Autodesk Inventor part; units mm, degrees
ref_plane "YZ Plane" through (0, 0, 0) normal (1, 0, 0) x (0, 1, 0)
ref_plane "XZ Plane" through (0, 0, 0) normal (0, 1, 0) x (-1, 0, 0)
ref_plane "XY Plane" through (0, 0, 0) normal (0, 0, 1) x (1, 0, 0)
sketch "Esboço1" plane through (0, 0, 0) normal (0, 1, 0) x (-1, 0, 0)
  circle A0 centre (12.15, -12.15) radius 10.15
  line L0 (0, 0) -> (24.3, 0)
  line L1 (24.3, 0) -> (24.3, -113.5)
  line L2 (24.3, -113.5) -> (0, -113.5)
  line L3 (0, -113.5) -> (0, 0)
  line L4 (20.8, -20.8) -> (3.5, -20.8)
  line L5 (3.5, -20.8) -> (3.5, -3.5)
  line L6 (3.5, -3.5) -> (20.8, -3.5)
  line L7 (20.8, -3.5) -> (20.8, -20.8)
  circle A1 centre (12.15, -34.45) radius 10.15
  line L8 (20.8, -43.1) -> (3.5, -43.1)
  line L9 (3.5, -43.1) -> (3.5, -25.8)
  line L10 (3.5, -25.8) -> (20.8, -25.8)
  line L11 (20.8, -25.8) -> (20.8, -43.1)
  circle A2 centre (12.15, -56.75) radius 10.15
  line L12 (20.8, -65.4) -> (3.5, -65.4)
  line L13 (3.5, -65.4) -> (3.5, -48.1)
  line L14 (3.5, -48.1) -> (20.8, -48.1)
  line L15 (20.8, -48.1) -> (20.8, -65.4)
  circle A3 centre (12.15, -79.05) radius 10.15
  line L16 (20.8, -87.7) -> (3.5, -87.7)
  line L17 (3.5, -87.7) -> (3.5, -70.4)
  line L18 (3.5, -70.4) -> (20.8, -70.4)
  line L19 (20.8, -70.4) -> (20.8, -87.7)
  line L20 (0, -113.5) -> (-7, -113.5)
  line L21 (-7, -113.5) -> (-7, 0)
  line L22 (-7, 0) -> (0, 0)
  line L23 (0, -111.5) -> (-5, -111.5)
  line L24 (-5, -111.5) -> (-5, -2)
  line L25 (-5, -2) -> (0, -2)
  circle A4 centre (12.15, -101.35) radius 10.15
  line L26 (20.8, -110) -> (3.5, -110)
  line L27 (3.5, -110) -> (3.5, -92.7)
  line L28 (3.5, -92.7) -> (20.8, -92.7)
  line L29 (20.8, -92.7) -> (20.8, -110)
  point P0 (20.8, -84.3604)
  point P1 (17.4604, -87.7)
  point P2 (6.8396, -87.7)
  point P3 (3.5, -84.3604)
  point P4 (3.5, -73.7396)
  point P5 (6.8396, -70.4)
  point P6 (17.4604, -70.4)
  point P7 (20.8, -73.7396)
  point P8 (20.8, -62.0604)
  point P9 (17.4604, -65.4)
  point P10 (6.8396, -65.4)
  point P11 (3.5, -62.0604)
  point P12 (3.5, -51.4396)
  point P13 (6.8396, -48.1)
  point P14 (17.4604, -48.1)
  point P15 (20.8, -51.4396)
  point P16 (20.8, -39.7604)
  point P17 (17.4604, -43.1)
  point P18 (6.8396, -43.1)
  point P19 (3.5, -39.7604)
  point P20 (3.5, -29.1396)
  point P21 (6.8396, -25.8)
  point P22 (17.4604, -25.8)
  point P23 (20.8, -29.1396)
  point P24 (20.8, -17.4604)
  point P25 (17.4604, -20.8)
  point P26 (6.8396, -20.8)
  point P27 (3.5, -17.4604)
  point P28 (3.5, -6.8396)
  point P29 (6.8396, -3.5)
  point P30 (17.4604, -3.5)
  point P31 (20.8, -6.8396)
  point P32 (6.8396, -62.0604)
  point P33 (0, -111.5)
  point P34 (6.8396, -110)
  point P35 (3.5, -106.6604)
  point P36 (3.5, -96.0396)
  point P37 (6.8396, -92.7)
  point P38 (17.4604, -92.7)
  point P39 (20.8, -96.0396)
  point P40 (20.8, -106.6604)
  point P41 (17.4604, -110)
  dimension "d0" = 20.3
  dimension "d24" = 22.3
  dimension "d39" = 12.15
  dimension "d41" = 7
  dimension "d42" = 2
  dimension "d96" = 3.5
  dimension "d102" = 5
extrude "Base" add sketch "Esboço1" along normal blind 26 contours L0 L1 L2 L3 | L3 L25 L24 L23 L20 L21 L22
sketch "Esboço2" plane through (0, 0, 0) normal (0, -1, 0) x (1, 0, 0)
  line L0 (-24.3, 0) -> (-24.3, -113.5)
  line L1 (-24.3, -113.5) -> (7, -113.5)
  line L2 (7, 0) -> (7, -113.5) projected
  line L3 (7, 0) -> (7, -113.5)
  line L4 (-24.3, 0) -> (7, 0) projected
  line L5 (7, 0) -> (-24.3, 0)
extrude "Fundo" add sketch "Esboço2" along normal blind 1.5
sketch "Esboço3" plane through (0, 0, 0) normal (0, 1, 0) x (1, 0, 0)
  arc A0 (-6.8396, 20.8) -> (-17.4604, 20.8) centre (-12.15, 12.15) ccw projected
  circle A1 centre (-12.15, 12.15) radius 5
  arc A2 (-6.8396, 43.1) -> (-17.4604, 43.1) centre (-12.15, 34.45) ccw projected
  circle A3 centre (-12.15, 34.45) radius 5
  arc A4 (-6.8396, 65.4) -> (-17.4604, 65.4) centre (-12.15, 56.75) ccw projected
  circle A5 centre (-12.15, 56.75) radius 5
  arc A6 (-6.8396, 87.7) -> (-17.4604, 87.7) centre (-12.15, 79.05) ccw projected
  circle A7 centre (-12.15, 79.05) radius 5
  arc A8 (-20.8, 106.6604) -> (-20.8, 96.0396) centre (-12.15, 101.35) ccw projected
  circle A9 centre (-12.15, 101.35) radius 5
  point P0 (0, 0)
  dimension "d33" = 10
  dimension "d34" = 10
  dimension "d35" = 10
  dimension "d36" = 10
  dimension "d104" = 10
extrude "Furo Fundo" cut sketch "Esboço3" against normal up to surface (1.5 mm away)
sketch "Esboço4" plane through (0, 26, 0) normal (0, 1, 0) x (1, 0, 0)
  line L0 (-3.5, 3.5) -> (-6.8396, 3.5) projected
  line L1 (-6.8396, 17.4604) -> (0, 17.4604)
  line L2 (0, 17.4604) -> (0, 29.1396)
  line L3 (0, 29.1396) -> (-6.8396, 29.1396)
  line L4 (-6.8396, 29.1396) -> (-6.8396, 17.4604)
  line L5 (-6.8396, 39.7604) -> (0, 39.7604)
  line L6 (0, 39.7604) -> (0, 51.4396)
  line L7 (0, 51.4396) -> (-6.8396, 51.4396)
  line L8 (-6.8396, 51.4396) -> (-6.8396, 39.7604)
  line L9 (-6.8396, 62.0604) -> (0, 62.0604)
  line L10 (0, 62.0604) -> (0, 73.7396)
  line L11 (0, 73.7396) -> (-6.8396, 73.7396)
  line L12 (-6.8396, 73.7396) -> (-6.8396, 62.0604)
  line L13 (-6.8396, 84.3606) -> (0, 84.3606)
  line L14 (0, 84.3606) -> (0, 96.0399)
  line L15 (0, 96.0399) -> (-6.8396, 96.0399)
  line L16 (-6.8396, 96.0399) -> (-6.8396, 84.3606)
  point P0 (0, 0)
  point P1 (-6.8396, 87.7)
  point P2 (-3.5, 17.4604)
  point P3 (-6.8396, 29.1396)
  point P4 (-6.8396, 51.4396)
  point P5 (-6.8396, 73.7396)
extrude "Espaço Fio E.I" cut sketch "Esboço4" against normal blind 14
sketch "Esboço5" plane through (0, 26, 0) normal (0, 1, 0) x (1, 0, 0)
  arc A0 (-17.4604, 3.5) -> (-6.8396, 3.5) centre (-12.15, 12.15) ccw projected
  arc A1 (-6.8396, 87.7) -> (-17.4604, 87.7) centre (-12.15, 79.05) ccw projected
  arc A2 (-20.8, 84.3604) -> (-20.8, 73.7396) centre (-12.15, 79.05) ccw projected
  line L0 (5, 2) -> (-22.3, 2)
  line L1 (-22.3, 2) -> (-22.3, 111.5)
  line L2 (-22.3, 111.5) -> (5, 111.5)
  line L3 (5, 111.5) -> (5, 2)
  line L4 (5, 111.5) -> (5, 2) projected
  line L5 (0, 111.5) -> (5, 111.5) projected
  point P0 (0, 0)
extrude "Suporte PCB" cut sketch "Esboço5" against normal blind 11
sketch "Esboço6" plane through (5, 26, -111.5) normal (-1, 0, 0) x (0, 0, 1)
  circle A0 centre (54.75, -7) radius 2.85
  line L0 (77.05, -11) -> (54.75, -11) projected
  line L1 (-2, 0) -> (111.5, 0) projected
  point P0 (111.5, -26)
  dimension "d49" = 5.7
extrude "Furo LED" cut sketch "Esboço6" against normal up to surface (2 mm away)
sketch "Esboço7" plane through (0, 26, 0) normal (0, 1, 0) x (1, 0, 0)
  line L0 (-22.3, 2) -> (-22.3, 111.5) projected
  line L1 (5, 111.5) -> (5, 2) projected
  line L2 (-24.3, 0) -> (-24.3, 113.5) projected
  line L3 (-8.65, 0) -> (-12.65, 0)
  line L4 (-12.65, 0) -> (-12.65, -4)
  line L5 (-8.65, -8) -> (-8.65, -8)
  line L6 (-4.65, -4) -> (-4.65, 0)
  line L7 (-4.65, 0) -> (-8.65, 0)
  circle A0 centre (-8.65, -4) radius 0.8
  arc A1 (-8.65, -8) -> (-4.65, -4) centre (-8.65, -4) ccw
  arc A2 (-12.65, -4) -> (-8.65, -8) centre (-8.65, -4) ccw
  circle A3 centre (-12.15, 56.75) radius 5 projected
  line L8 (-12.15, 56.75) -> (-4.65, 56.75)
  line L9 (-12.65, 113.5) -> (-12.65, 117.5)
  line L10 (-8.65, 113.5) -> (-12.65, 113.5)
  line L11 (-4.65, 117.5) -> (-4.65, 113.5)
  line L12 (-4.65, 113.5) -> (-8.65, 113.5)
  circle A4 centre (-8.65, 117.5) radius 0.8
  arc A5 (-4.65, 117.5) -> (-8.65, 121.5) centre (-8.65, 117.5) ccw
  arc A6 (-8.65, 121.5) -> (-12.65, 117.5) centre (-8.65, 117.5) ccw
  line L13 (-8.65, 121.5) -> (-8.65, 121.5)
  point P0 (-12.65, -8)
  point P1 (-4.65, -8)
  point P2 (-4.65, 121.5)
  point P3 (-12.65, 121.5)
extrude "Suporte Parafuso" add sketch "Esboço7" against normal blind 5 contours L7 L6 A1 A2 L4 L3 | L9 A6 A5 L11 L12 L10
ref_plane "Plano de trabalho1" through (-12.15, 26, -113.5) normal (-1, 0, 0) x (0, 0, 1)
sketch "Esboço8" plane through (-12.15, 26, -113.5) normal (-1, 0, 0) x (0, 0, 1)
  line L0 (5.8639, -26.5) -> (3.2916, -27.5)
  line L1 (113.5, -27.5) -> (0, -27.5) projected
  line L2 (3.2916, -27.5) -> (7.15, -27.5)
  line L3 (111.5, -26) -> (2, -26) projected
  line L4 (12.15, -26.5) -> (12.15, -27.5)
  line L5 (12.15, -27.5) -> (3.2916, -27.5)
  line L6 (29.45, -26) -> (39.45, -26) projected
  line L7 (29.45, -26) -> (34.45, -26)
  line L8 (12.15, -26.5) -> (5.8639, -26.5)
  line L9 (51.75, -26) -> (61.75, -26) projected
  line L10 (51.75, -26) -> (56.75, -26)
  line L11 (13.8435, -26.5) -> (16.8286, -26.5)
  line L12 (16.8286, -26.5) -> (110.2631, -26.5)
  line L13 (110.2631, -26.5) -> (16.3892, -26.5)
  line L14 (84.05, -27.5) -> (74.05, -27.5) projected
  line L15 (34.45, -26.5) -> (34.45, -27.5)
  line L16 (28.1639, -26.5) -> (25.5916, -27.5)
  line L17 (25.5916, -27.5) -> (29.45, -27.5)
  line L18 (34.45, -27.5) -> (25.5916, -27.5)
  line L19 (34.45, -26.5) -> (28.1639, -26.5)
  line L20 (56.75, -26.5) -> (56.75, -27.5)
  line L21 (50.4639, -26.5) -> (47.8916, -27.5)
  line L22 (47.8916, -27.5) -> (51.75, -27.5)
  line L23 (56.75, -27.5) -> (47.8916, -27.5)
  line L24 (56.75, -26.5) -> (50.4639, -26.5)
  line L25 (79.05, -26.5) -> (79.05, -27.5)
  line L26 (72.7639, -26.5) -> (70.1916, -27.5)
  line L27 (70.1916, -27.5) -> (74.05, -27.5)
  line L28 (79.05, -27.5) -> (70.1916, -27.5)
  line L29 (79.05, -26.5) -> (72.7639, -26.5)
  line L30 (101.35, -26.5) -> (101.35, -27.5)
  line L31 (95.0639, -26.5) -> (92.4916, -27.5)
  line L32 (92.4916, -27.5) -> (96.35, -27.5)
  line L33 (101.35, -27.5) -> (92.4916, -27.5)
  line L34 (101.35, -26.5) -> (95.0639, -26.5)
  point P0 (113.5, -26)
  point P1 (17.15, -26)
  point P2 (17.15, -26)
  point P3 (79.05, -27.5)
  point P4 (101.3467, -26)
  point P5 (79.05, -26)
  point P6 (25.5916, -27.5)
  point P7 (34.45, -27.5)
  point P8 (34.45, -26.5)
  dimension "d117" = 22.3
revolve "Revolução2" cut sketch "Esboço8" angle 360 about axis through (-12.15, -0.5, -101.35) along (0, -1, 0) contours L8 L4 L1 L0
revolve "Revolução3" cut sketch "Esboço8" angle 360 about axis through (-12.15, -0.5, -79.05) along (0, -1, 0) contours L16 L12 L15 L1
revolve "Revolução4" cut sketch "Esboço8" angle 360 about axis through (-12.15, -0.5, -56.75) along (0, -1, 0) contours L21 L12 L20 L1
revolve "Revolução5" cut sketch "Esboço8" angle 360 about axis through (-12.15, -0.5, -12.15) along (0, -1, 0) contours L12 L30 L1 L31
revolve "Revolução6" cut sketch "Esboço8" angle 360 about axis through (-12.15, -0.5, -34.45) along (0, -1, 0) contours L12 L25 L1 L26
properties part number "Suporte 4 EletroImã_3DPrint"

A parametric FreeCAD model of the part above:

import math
import FreeCAD as App
import Part
import Sketcher
from FreeCAD import Vector


def add_polygon(sketch, points):
    """Adds a closed chain of lines whose ends are joined by coincident constraints."""
    first, n = sketch.GeometryCount, len(points)
    for a, b in zip(points, points[1:] + points[:1]):
        sketch.addGeometry(Part.LineSegment(App.Vector(*a, 0), App.Vector(*b, 0)), False)
    for i in range(n):
        sketch.addConstraint(Sketcher.Constraint("Coincident", first + i, 2, first + (i + 1) % n, 1))

doc = App.newDocument("Part")
body = doc.addObject("PartDesign::Body", "Body")

# Sketch on XZ plane
sketch1 = body.newObject("Sketcher::SketchObject", "Sketch")
sketch1.AttachmentSupport = (doc.getObject("XZ_Plane"), [""])
sketch1.MapMode = "FlatFace"
add_polygon(sketch1, [(-24.3, 0), (7, 0), (7, -113.5), (-24.3, -113.5)])  # lines 0-3
add_polygon(sketch1, [(0, -2), (0, -111.5), (5, -111.5), (5, -2)])  # lines 4-7
sketch1.addGeometry(Part.ArcOfCircle(Part.Circle(Vector(-12.15, -101.35, 0), Vector(0, 0, 1), 10.15), math.radians(148.4536), math.radians(211.5464)), False)  # 8
sketch1.addGeometry(Part.LineSegment(Vector(-20.8, -106.660367, 0), Vector(-20.8, -110, 0)), False)  # 9
sketch1.addGeometry(Part.LineSegment(Vector(-20.8, -110, 0), Vector(-17.460367, -110, 0)), False)  # 10
sketch1.addGeometry(Part.ArcOfCircle(Part.Circle(Vector(-12.15, -101.35, 0), Vector(0, 0, 1), 10.15), math.radians(-121.5464), math.radians(-58.4536)), False)  # 11
sketch1.addGeometry(Part.LineSegment(Vector(-6.839633, -110, 0), Vector(-3.5, -110, 0)), False)  # 12
sketch1.addGeometry(Part.LineSegment(Vector(-3.5, -110, 0), Vector(-3.5, -106.660367, 0)), False)  # 13
sketch1.addGeometry(Part.ArcOfCircle(Part.Circle(Vector(-12.15, -101.35, 0), Vector(0, 0, 1), 10.15), math.radians(-31.5464), math.radians(31.5464)), False)  # 14
sketch1.addGeometry(Part.LineSegment(Vector(-3.5, -96.039633, 0), Vector(-3.5, -92.7, 0)), False)  # 15
sketch1.addGeometry(Part.LineSegment(Vector(-3.5, -92.7, 0), Vector(-6.839633, -92.7, 0)), False)  # 16
sketch1.addGeometry(Part.ArcOfCircle(Part.Circle(Vector(-12.15, -101.35, 0), Vector(0, 0, 1), 10.15), math.radians(58.4536), math.radians(121.5464)), False)  # 17
sketch1.addGeometry(Part.LineSegment(Vector(-17.460367, -92.7, 0), Vector(-20.8, -92.7, 0)), False)  # 18
sketch1.addGeometry(Part.LineSegment(Vector(-20.8, -92.7, 0), Vector(-20.8, -96.039633, 0)), False)  # 19
sketch1.addGeometry(Part.ArcOfCircle(Part.Circle(Vector(-12.15, -79.05, 0), Vector(0, 0, 1), 10.15), math.radians(148.4536), math.radians(211.5464)), False)  # 20
sketch1.addGeometry(Part.LineSegment(Vector(-20.8, -84.360367, 0), Vector(-20.8, -87.7, 0)), False)  # 21
sketch1.addGeometry(Part.LineSegment(Vector(-20.8, -87.7, 0), Vector(-17.460367, -87.7, 0)), False)  # 22
sketch1.addGeometry(Part.ArcOfCircle(Part.Circle(Vector(-12.15, -79.05, 0), Vector(0, 0, 1), 10.15), math.radians(-121.5464), math.radians(-58.4536)), False)  # 23
sketch1.addGeometry(Part.LineSegment(Vector(-6.839633, -87.7, 0), Vector(-3.5, -87.7, 0)), False)  # 24
sketch1.addGeometry(Part.LineSegment(Vector(-3.5, -87.7, 0), Vector(-3.5, -84.360367, 0)), False)  # 25
sketch1.addGeometry(Part.ArcOfCircle(Part.Circle(Vector(-12.15, -79.05, 0), Vector(0, 0, 1), 10.15), math.radians(-31.5464), math.radians(31.5464)), False)  # 26
sketch1.addGeometry(Part.LineSegment(Vector(-3.5, -73.739633, 0), Vector(-3.5, -70.4, 0)), False)  # 27
sketch1.addGeometry(Part.LineSegment(Vector(-3.5, -70.4, 0), Vector(-6.839633, -70.4, 0)), False)  # 28
sketch1.addGeometry(Part.ArcOfCircle(Part.Circle(Vector(-12.15, -79.05, 0), Vector(0, 0, 1), 10.15), math.radians(58.4536), math.radians(121.5464)), False)  # 29
sketch1.addGeometry(Part.LineSegment(Vector(-17.460367, -70.4, 0), Vector(-20.8, -70.4, 0)), False)  # 30
sketch1.addGeometry(Part.LineSegment(Vector(-20.8, -70.4, 0), Vector(-20.8, -73.739633, 0)), False)  # 31
sketch1.addGeometry(Part.ArcOfCircle(Part.Circle(Vector(-12.15, -56.75, 0), Vector(0, 0, 1), 10.15), math.radians(148.4536), math.radians(211.5464)), False)  # 32
sketch1.addGeometry(Part.LineSegment(Vector(-20.8, -62.060367, 0), Vector(-20.8, -65.4, 0)), False)  # 33
sketch1.addGeometry(Part.LineSegment(Vector(-20.8, -65.4, 0), Vector(-17.460367, -65.4, 0)), False)  # 34
sketch1.addGeometry(Part.ArcOfCircle(Part.Circle(Vector(-12.15, -56.75, 0), Vector(0, 0, 1), 10.15), math.radians(-121.5464), math.radians(-58.4536)), False)  # 35
sketch1.addGeometry(Part.LineSegment(Vector(-6.839633, -65.4, 0), Vector(-3.5, -65.4, 0)), False)  # 36
sketch1.addGeometry(Part.LineSegment(Vector(-3.5, -65.4, 0), Vector(-3.5, -62.060367, 0)), False)  # 37
sketch1.addGeometry(Part.ArcOfCircle(Part.Circle(Vector(-12.15, -56.75, 0), Vector(0, 0, 1), 10.15), math.radians(-31.5464), math.radians(31.5464)), False)  # 38
sketch1.addGeometry(Part.LineSegment(Vector(-3.5, -51.439633, 0), Vector(-3.5, -48.1, 0)), False)  # 39
sketch1.addGeometry(Part.LineSegment(Vector(-3.5, -48.1, 0), Vector(-6.839633, -48.1, 0)), False)  # 40
sketch1.addGeometry(Part.ArcOfCircle(Part.Circle(Vector(-12.15, -56.75, 0), Vector(0, 0, 1), 10.15), math.radians(58.4536), math.radians(121.5464)), False)  # 41
sketch1.addGeometry(Part.LineSegment(Vector(-17.460367, -48.1, 0), Vector(-20.8, -48.1, 0)), False)  # 42
sketch1.addGeometry(Part.LineSegment(Vector(-20.8, -48.1, 0), Vector(-20.8, -51.439633, 0)), False)  # 43
sketch1.addGeometry(Part.ArcOfCircle(Part.Circle(Vector(-12.15, -34.45, 0), Vector(0, 0, 1), 10.15), math.radians(148.4536), math.radians(211.5464)), False)  # 44
sketch1.addGeometry(Part.LineSegment(Vector(-20.8, -39.760367, 0), Vector(-20.8, -43.1, 0)), False)  # 45
sketch1.addGeometry(Part.LineSegment(Vector(-20.8, -43.1, 0), Vector(-17.460367, -43.1, 0)), False)  # 46
sketch1.addGeometry(Part.ArcOfCircle(Part.Circle(Vector(-12.15, -34.45, 0), Vector(0, 0, 1), 10.15), math.radians(-121.5464), math.radians(-58.4536)), False)  # 47
sketch1.addGeometry(Part.LineSegment(Vector(-6.839633, -43.1, 0), Vector(-3.5, -43.1, 0)), False)  # 48
sketch1.addGeometry(Part.LineSegment(Vector(-3.5, -43.1, 0), Vector(-3.5, -39.760367, 0)), False)  # 49
sketch1.addGeometry(Part.ArcOfCircle(Part.Circle(Vector(-12.15, -34.45, 0), Vector(0, 0, 1), 10.15), math.radians(-31.5464), math.radians(31.5464)), False)  # 50
sketch1.addGeometry(Part.LineSegment(Vector(-3.5, -29.139633, 0), Vector(-3.5, -25.8, 0)), False)  # 51
sketch1.addGeometry(Part.LineSegment(Vector(-3.5, -25.8, 0), Vector(-6.839633, -25.8, 0)), False)  # 52
sketch1.addGeometry(Part.ArcOfCircle(Part.Circle(Vector(-12.15, -34.45, 0), Vector(0, 0, 1), 10.15), math.radians(58.4536), math.radians(121.5464)), False)  # 53
sketch1.addGeometry(Part.LineSegment(Vector(-17.460367, -25.8, 0), Vector(-20.8, -25.8, 0)), False)  # 54
sketch1.addGeometry(Part.LineSegment(Vector(-20.8, -25.8, 0), Vector(-20.8, -29.139633, 0)), False)  # 55
sketch1.addGeometry(Part.ArcOfCircle(Part.Circle(Vector(-12.15, -12.15, 0), Vector(0, 0, 1), 10.15), math.radians(148.4536), math.radians(211.5464)), False)  # 56
sketch1.addGeometry(Part.LineSegment(Vector(-20.8, -17.460367, 0), Vector(-20.8, -20.8, 0)), False)  # 57
sketch1.addGeometry(Part.LineSegment(Vector(-20.8, -20.8, 0), Vector(-17.460367, -20.8, 0)), False)  # 58
sketch1.addGeometry(Part.ArcOfCircle(Part.Circle(Vector(-12.15, -12.15, 0), Vector(0, 0, 1), 10.15), math.radians(-121.5464), math.radians(-58.4536)), False)  # 59
sketch1.addGeometry(Part.LineSegment(Vector(-6.839633, -20.8, 0), Vector(-3.5, -20.8, 0)), False)  # 60
sketch1.addGeometry(Part.LineSegment(Vector(-3.5, -20.8, 0), Vector(-3.5, -17.460367, 0)), False)  # 61
sketch1.addGeometry(Part.ArcOfCircle(Part.Circle(Vector(-12.15, -12.15, 0), Vector(0, 0, 1), 10.15), math.radians(-31.5464), math.radians(31.5464)), False)  # 62
sketch1.addGeometry(Part.LineSegment(Vector(-3.5, -6.839633, 0), Vector(-3.5, -3.5, 0)), False)  # 63
sketch1.addGeometry(Part.LineSegment(Vector(-3.5, -3.5, 0), Vector(-6.839633, -3.5, 0)), False)  # 64
sketch1.addGeometry(Part.ArcOfCircle(Part.Circle(Vector(-12.15, -12.15, 0), Vector(0, 0, 1), 10.15), math.radians(58.4536), math.radians(121.5464)), False)  # 65
sketch1.addGeometry(Part.LineSegment(Vector(-17.460367, -3.5, 0), Vector(-20.8, -3.5, 0)), False)  # 66
sketch1.addGeometry(Part.LineSegment(Vector(-20.8, -3.5, 0), Vector(-20.8, -6.839633, 0)), False)  # 67
sketch1.addConstraint([
    Sketcher.Constraint("Coincident", 8, 2, 9, 1),
    Sketcher.Constraint("Coincident", 9, 2, 10, 1),
    Sketcher.Constraint("Coincident", 10, 2, 11, 1),
    Sketcher.Constraint("Coincident", 11, 2, 12, 1),
    Sketcher.Constraint("Coincident", 12, 2, 13, 1),
    Sketcher.Constraint("Coincident", 13, 2, 14, 1),
    Sketcher.Constraint("Coincident", 14, 2, 15, 1),
    Sketcher.Constraint("Coincident", 15, 2, 16, 1),
    Sketcher.Constraint("Coincident", 16, 2, 17, 1),
    Sketcher.Constraint("Coincident", 17, 2, 18, 1),
    Sketcher.Constraint("Coincident", 18, 2, 19, 1),
    Sketcher.Constraint("Coincident", 19, 2, 8, 1),
    Sketcher.Constraint("Coincident", 20, 2, 21, 1),
    Sketcher.Constraint("Coincident", 21, 2, 22, 1),
    Sketcher.Constraint("Coincident", 22, 2, 23, 1),
    Sketcher.Constraint("Coincident", 23, 2, 24, 1),
    Sketcher.Constraint("Coincident", 24, 2, 25, 1),
    Sketcher.Constraint("Coincident", 25, 2, 26, 1),
    Sketcher.Constraint("Coincident", 26, 2, 27, 1),
    Sketcher.Constraint("Coincident", 27, 2, 28, 1),
    Sketcher.Constraint("Coincident", 28, 2, 29, 1),
    Sketcher.Constraint("Coincident", 29, 2, 30, 1),
    Sketcher.Constraint("Coincident", 30, 2, 31, 1),
    Sketcher.Constraint("Coincident", 31, 2, 20, 1),
    Sketcher.Constraint("Coincident", 32, 2, 33, 1),
    Sketcher.Constraint("Coincident", 33, 2, 34, 1),
    Sketcher.Constraint("Coincident", 34, 2, 35, 1),
    Sketcher.Constraint("Coincident", 35, 2, 36, 1),
    Sketcher.Constraint("Coincident", 36, 2, 37, 1),
    Sketcher.Constraint("Coincident", 37, 2, 38, 1),
    Sketcher.Constraint("Coincident", 38, 2, 39, 1),
    Sketcher.Constraint("Coincident", 39, 2, 40, 1),
    Sketcher.Constraint("Coincident", 40, 2, 41, 1),
    Sketcher.Constraint("Coincident", 41, 2, 42, 1),
    Sketcher.Constraint("Coincident", 42, 2, 43, 1),
    Sketcher.Constraint("Coincident", 43, 2, 32, 1),
    Sketcher.Constraint("Coincident", 44, 2, 45, 1),
    Sketcher.Constraint("Coincident", 45, 2, 46, 1),
    Sketcher.Constraint("Coincident", 46, 2, 47, 1),
    Sketcher.Constraint("Coincident", 47, 2, 48, 1),
    Sketcher.Constraint("Coincident", 48, 2, 49, 1),
    Sketcher.Constraint("Coincident", 49, 2, 50, 1),
    Sketcher.Constraint("Coincident", 50, 2, 51, 1),
    Sketcher.Constraint("Coincident", 51, 2, 52, 1),
    Sketcher.Constraint("Coincident", 52, 2, 53, 1),
    Sketcher.Constraint("Coincident", 53, 2, 54, 1),
    Sketcher.Constraint("Coincident", 54, 2, 55, 1),
    Sketcher.Constraint("Coincident", 55, 2, 44, 1),
    Sketcher.Constraint("Coincident", 56, 2, 57, 1),
    Sketcher.Constraint("Coincident", 57, 2, 58, 1),
    Sketcher.Constraint("Coincident", 58, 2, 59, 1),
    Sketcher.Constraint("Coincident", 59, 2, 60, 1),
    Sketcher.Constraint("Coincident", 60, 2, 61, 1),
    Sketcher.Constraint("Coincident", 61, 2, 62, 1),
    Sketcher.Constraint("Coincident", 62, 2, 63, 1),
    Sketcher.Constraint("Coincident", 63, 2, 64, 1),
    Sketcher.Constraint("Coincident", 64, 2, 65, 1),
    Sketcher.Constraint("Coincident", 65, 2, 66, 1),
    Sketcher.Constraint("Coincident", 66, 2, 67, 1),
    Sketcher.Constraint("Coincident", 67, 2, 56, 1),
    Sketcher.Constraint("Horizontal", 0),
    Sketcher.Constraint("Vertical", 1),
    Sketcher.Constraint("Horizontal", 2),
    Sketcher.Constraint("Vertical", 3),
    Sketcher.Constraint("Vertical", 4),
    Sketcher.Constraint("Horizontal", 5),
    Sketcher.Constraint("Vertical", 6),
    Sketcher.Constraint("Horizontal", 7),
    Sketcher.Constraint("Vertical", 9),
    Sketcher.Constraint("Horizontal", 10),
    Sketcher.Constraint("Horizontal", 12),
    Sketcher.Constraint("Vertical", 13),
    Sketcher.Constraint("Vertical", 15),
    Sketcher.Constraint("Horizontal", 16),
    Sketcher.Constraint("Horizontal", 18),
    Sketcher.Constraint("Vertical", 19),
    Sketcher.Constraint("Vertical", 21),
    Sketcher.Constraint("Horizontal", 22),
    Sketcher.Constraint("Horizontal", 24),
    Sketcher.Constraint("Vertical", 25),
    Sketcher.Constraint("Vertical", 27),
    Sketcher.Constraint("Horizontal", 28),
    Sketcher.Constraint("Horizontal", 30),
    Sketcher.Constraint("Vertical", 31),
    Sketcher.Constraint("Vertical", 33),
    Sketcher.Constraint("Horizontal", 34),
    Sketcher.Constraint("Horizontal", 36),
    Sketcher.Constraint("Vertical", 37),
    Sketcher.Constraint("Vertical", 39),
    Sketcher.Constraint("Horizontal", 40),
    Sketcher.Constraint("Horizontal", 42),
    Sketcher.Constraint("Vertical", 43),
    Sketcher.Constraint("Vertical", 45),
    Sketcher.Constraint("Horizontal", 46),
    Sketcher.Constraint("Horizontal", 48),
    Sketcher.Constraint("Vertical", 49),
    Sketcher.Constraint("Vertical", 51),
    Sketcher.Constraint("Horizontal", 52),
    Sketcher.Constraint("Horizontal", 54),
    Sketcher.Constraint("Vertical", 55),
    Sketcher.Constraint("Vertical", 57),
    Sketcher.Constraint("Horizontal", 58),
    Sketcher.Constraint("Horizontal", 60),
    Sketcher.Constraint("Vertical", 61),
    Sketcher.Constraint("Vertical", 63),
    Sketcher.Constraint("Horizontal", 64),
    Sketcher.Constraint("Horizontal", 66),
    Sketcher.Constraint("Vertical", 67),
    Sketcher.Constraint("Coincident", 11, 3, 8, 3),
    Sketcher.Constraint("Coincident", 14, 3, 8, 3),
    Sketcher.Constraint("Coincident", 17, 3, 8, 3),
    Sketcher.Constraint("Coincident", 23, 3, 20, 3),
    Sketcher.Constraint("Coincident", 26, 3, 20, 3),
    Sketcher.Constraint("Coincident", 29, 3, 20, 3),
    Sketcher.Constraint("Coincident", 35, 3, 32, 3),
    Sketcher.Constraint("Coincident", 38, 3, 32, 3),
    Sketcher.Constraint("Coincident", 41, 3, 32, 3),
    Sketcher.Constraint("Coincident", 47, 3, 44, 3),
    Sketcher.Constraint("Coincident", 50, 3, 44, 3),
    Sketcher.Constraint("Coincident", 53, 3, 44, 3),
    Sketcher.Constraint("Coincident", 59, 3, 56, 3),
    Sketcher.Constraint("Coincident", 62, 3, 56, 3),
    Sketcher.Constraint("Coincident", 65, 3, 56, 3),
    Sketcher.Constraint("Equal", 8, 11),
    Sketcher.Constraint("Equal", 11, 14),
    Sketcher.Constraint("Equal", 14, 17),
    Sketcher.Constraint("Equal", 17, 20),
    Sketcher.Constraint("Equal", 20, 23),
    Sketcher.Constraint("Equal", 23, 26),
    Sketcher.Constraint("Equal", 26, 29),
    Sketcher.Constraint("Equal", 29, 32),
    Sketcher.Constraint("Equal", 32, 35),
    Sketcher.Constraint("Equal", 35, 38),
    Sketcher.Constraint("Equal", 38, 41),
    Sketcher.Constraint("Equal", 41, 44),
    Sketcher.Constraint("Equal", 44, 47),
    Sketcher.Constraint("Equal", 47, 50),
    Sketcher.Constraint("Equal", 50, 53),
    Sketcher.Constraint("Equal", 53, 56),
    Sketcher.Constraint("Equal", 56, 59),
    Sketcher.Constraint("Equal", 59, 62),
    Sketcher.Constraint("Equal", 62, 65),
    Sketcher.Constraint("PointOnObject", 0, 2, -1),
    Sketcher.Constraint("PointOnObject", 4, 2, -2),
    Sketcher.Constraint("Horizontal", 10, 2, 11, 2),
    Sketcher.Constraint("Horizontal", 8, 2, 13, 2),
    Sketcher.Constraint("Horizontal", 16, 2, 17, 2),
    Sketcher.Constraint("Horizontal", 14, 2, 19, 2),
    Sketcher.Constraint("Horizontal", 22, 2, 23, 2),
    Sketcher.Constraint("Horizontal", 20, 2, 25, 2),
    Sketcher.Constraint("Horizontal", 28, 2, 29, 2),
    Sketcher.Constraint("Horizontal", 26, 2, 31, 2),
    Sketcher.Constraint("Horizontal", 34, 2, 35, 2),
    Sketcher.Constraint("Horizontal", 32, 2, 37, 2),
    Sketcher.Constraint("Horizontal", 40, 2, 41, 2),
    Sketcher.Constraint("Horizontal", 38, 2, 43, 2),
    Sketcher.Constraint("Horizontal", 46, 2, 47, 2),
    Sketcher.Constraint("Horizontal", 44, 2, 49, 2),
    Sketcher.Constraint("Horizontal", 52, 2, 53, 2),
    Sketcher.Constraint("Horizontal", 50, 2, 55, 2),
    Sketcher.Constraint("Horizontal", 58, 2, 59, 2),
    Sketcher.Constraint("Horizontal", 56, 2, 61, 2),
    Sketcher.Constraint("Horizontal", 64, 2, 65, 2),
    Sketcher.Constraint("Horizontal", 62, 2, 67, 2),
    Sketcher.Constraint("Vertical", 17, 3, 20, 3),
    Sketcher.Constraint("Vertical", 29, 3, 32, 3),
    Sketcher.Constraint("Vertical", 41, 3, 44, 3),
    Sketcher.Constraint("Vertical", 53, 3, 56, 3),
    Sketcher.Constraint("Vertical", 13, 2, 14, 2),
    Sketcher.Constraint("Vertical", 11, 2, 16, 2),
    Sketcher.Constraint("Vertical", 19, 2, 20, 2),
    Sketcher.Constraint("Vertical", 17, 2, 22, 2),
    Sketcher.Constraint("Vertical", 25, 2, 26, 2),
    Sketcher.Constraint("Vertical", 23, 2, 28, 2),
    Sketcher.Constraint("Vertical", 31, 2, 32, 2),
    Sketcher.Constraint("Vertical", 29, 2, 34, 2),
    Sketcher.Constraint("Vertical", 37, 2, 38, 2),
    Sketcher.Constraint("Vertical", 35, 2, 40, 2),
    Sketcher.Constraint("Vertical", 43, 2, 44, 2),
    Sketcher.Constraint("Vertical", 41, 2, 46, 2),
    Sketcher.Constraint("Vertical", 49, 2, 50, 2),
    Sketcher.Constraint("Vertical", 47, 2, 52, 2),
    Sketcher.Constraint("Vertical", 55, 2, 56, 2),
    Sketcher.Constraint("Vertical", 53, 2, 58, 2),
    Sketcher.Constraint("Vertical", 61, 2, 62, 2),
    Sketcher.Constraint("Vertical", 59, 2, 64, 2),
    Sketcher.Constraint("Equal", 66, 9),
    Sketcher.Constraint("DistanceX", 5, 1, 5, 2, 5.0),
    Sketcher.Constraint("Radius", 8, 10.15),
    Sketcher.Constraint("DistanceX", -1, 1, 0, 2, 7.0),
    Sketcher.Constraint("DistanceY", 6, 2, -1, 1, 2.0),
    Sketcher.Constraint("DistanceX", 12, 2, -1, 1, 3.5),
    Sketcher.Constraint("DistanceY", 63, 2, -1, 1, 3.5),
    Sketcher.Constraint("DistanceX", 8, 3, -1, 1, 12.15),
    Sketcher.Constraint("DistanceX", 0, 1, 0, 2, 31.3),
    Sketcher.Constraint("DistanceY", 1, 2, 1, 1, 113.5),
    Sketcher.Constraint("DistanceY", 4, 2, 4, 1, 109.5),
    Sketcher.Constraint("DistanceY", 9, 2, -1, 1, 110.0),
    Sketcher.Constraint("DistanceY", 21, 2, -1, 1, 87.7),
    Sketcher.Constraint("DistanceY", 33, 2, -1, 1, 65.4),
    Sketcher.Constraint("DistanceY", 45, 2, -1, 1, 43.1),
])
pad1 = body.newObject("PartDesign::Pad", "Pad")
pad1.Profile = sketch1
pad1.Length = 26
pad1.Reversed = True

# Sketch on XZ plane
sketch2 = body.newObject("Sketcher::SketchObject", "Sketch001")
sketch2.AttachmentSupport = (doc.getObject("XZ_Plane"), [""])
sketch2.MapMode = "FlatFace"
add_polygon(sketch2, [(7, 0), (-24.3, 0), (-24.3, -113.5), (7, -113.5)])  # lines 0-3
sketch2.addConstraint([
    Sketcher.Constraint("Horizontal", 0),
    Sketcher.Constraint("Vertical", 1),
    Sketcher.Constraint("Horizontal", 2),
    Sketcher.Constraint("Vertical", 3),
    Sketcher.Constraint("PointOnObject", 0, 2, -1),
    Sketcher.Constraint("DistanceX", 0, 2, 0, 1, 31.3),
    Sketcher.Constraint("DistanceY", 1, 2, 1, 1, 113.5),
    Sketcher.Constraint("DistanceX", -1, 1, 2, 2, 7.0),
])
pad2 = body.newObject("PartDesign::Pad", "Pad001")
pad2.Profile = sketch2
pad2.Length = 1.5

# Sketch on XZ plane
sketch3 = body.newObject("Sketcher::SketchObject", "Sketch002")
sketch3.AttachmentSupport = (doc.getObject("XZ_Plane"), [""])
sketch3.MapMode = "FlatFace"
sketch3.addGeometry([
    Part.Circle(Vector(-12.15, -12.15, 0), Vector(0, 0, 1), 5),  # 0
    Part.Circle(Vector(-12.15, -34.45, 0), Vector(0, 0, 1), 5),  # 1
    Part.Circle(Vector(-12.15, -56.75, 0), Vector(0, 0, 1), 5),  # 2
    Part.Circle(Vector(-12.15, -79.05, 0), Vector(0, 0, 1), 5),  # 3
    Part.Circle(Vector(-12.15, -101.35, 0), Vector(0, 0, 1), 5),  # 4
], False)
sketch3.addConstraint([
    Sketcher.Constraint("Equal", 0, 1),
    Sketcher.Constraint("Equal", 1, 2),
    Sketcher.Constraint("Equal", 2, 3),
    Sketcher.Constraint("Equal", 3, 4),
    Sketcher.Constraint("Vertical", 0, 3, 1, 3),
    Sketcher.Constraint("Vertical", 1, 3, 2, 3),
    Sketcher.Constraint("Vertical", 2, 3, 3, 3),
    Sketcher.Constraint("Vertical", 3, 3, 4, 3),
    Sketcher.Constraint("Diameter", 0, 10.0),
    Sketcher.Constraint("DistanceY", 1, 3, 0, 3, 22.3),
    Sketcher.Constraint("DistanceY", 2, 3, 1, 3, 22.3),
    Sketcher.Constraint("DistanceY", 3, 3, 2, 3, 22.3),
    Sketcher.Constraint("DistanceY", 4, 3, 3, 3, 22.3),
    Sketcher.Constraint("DistanceX", 0, 3, -1, 1, 12.15),
    Sketcher.Constraint("DistanceY", 0, 3, -1, 1, 12.15),
])
pocket1 = body.newObject("PartDesign::Pocket", "Pocket")
pocket1.Profile = sketch3
pocket1.Length = 1.5
pocket1.Reversed = True

# Sketch on XZ plane
sketch4 = body.newObject("Sketcher::SketchObject", "Sketch003")
sketch4.AttachmentSupport = (doc.getObject("XZ_Plane"), [""])
sketch4.MapMode = "FlatFace"
sketch4.AttachmentOffset = App.Placement(Vector(0, 0, -26), App.Rotation())
add_polygon(sketch4, [(-6.8396, -29.1396), (-6.8396, -17.4604), (0, -17.4604), (0, -29.1396)])  # lines 0-3
add_polygon(sketch4, [(-6.8396, -51.4396), (-6.8396, -39.7604), (0, -39.7604), (0, -51.4396)])  # lines 4-7
add_polygon(sketch4, [(-6.8396, -73.7396), (-6.8396, -62.0604), (0, -62.0604), (0, -73.7396)])  # lines 8-11
add_polygon(sketch4, [(-6.8396, -96.0399), (-6.8396, -84.3606), (0, -84.3606), (0, -96.0399)])  # lines 12-15
sketch4.addConstraint([
    Sketcher.Constraint("Vertical", 0),
    Sketcher.Constraint("Horizontal", 1),
    Sketcher.Constraint("Vertical", 2),
    Sketcher.Constraint("Horizontal", 3),
    Sketcher.Constraint("Vertical", 4),
    Sketcher.Constraint("Horizontal", 5),
    Sketcher.Constraint("Vertical", 6),
    Sketcher.Constraint("Horizontal", 7),
    Sketcher.Constraint("Vertical", 8),
    Sketcher.Constraint("Horizontal", 9),
    Sketcher.Constraint("Vertical", 10),
    Sketcher.Constraint("Horizontal", 11),
    Sketcher.Constraint("Vertical", 12),
    Sketcher.Constraint("Horizontal", 13),
    Sketcher.Constraint("Vertical", 14),
    Sketcher.Constraint("Horizontal", 15),
    Sketcher.Constraint("PointOnObject", 1, 2, -2),
    Sketcher.Constraint("PointOnObject", 5, 2, -2),
    Sketcher.Constraint("PointOnObject", 9, 2, -2),
    Sketcher.Constraint("PointOnObject", 13, 2, -2),
    Sketcher.Constraint("Vertical", 3, 2, 4, 2),
    Sketcher.Constraint("Vertical", 7, 2, 8, 2),
    Sketcher.Constraint("Vertical", 11, 2, 12, 2),
    Sketcher.Constraint("Equal", 2, 4),
    Sketcher.Constraint("Equal", 6, 8),
    Sketcher.Constraint("Equal", 10, 12),
    Sketcher.Constraint("DistanceY", 4, 2, 0, 2, 22.3),
    Sketcher.Constraint("DistanceY", 8, 2, 4, 2, 22.3),
    Sketcher.Constraint("DistanceY", 14, 2, -1, 1, 96.04),
    Sketcher.Constraint("DistanceX", 1, 1, 1, 2, 6.8396),
    Sketcher.Constraint("DistanceY", 0, 1, 0, 2, 11.6792),
    Sketcher.Constraint("DistanceY", 12, 2, 11, 2, 10.621),
])
pocket2 = body.newObject("PartDesign::Pocket", "Pocket001")
pocket2.Profile = sketch4
pocket2.Length = 14
pocket2.Reversed = True

# Sketch on XZ plane
sketch5 = body.newObject("Sketcher::SketchObject", "Sketch004")
sketch5.AttachmentSupport = (doc.getObject("XZ_Plane"), [""])
sketch5.MapMode = "FlatFace"
sketch5.AttachmentOffset = App.Placement(Vector(0, 0, -26), App.Rotation())
add_polygon(sketch5, [(-22.3, -2), (5, -2), (5, -111.5), (-22.3, -111.5)])  # lines 0-3
sketch5.addConstraint([
    Sketcher.Constraint("Horizontal", 0),
    Sketcher.Constraint("Vertical", 1),
    Sketcher.Constraint("Horizontal", 2),
    Sketcher.Constraint("Vertical", 3),
    Sketcher.Constraint("DistanceX", 0, 1, 0, 2, 27.3),
    Sketcher.Constraint("DistanceY", 1, 2, 1, 1, 109.5),
    Sketcher.Constraint("DistanceX", -1, 1, 0, 2, 5.0),
    Sketcher.Constraint("DistanceY", 0, 2, -1, 1, 2.0),
])
pocket3 = body.newObject("PartDesign::Pocket", "Pocket002")
pocket3.Profile = sketch5
pocket3.Length = 11
pocket3.Reversed = True

# Sketch on YZ plane
sketch6 = body.newObject("Sketcher::SketchObject", "Sketch005")
sketch6.AttachmentSupport = (doc.getObject("YZ_Plane"), [""])
sketch6.MapMode = "FlatFace"
sketch6.AttachmentOffset = App.Placement(Vector(0, 0, 5), App.Rotation())
sketch6.addGeometry(Part.Circle(Vector(19, -56.75, 0), Vector(0, 0, 1), 2.85), False)
sketch6.addConstraint([
    Sketcher.Constraint("Diameter", 0, 5.7),
    Sketcher.Constraint("DistanceX", -1, 1, 0, 3, 19.0),
    Sketcher.Constraint("DistanceY", 0, 3, -1, 1, 56.75),
])
pocket4 = body.newObject("PartDesign::Pocket", "Pocket003")
pocket4.Profile = sketch6
pocket4.Length = 2
pocket4.Reversed = True

# Sketch on XZ plane
sketch7 = body.newObject("Sketcher::SketchObject", "Sketch006")
sketch7.AttachmentSupport = (doc.getObject("XZ_Plane"), [""])
sketch7.MapMode = "FlatFace"
sketch7.AttachmentOffset = App.Placement(Vector(0, 0, -26), App.Rotation())
sketch7.addGeometry([
    Part.LineSegment(Vector(-4.65, 0, 0), Vector(-12.65, 0, 0)),  # 0
    Part.LineSegment(Vector(-12.65, 0, 0), Vector(-12.65, 4, 0)),  # 1
    Part.ArcOfCircle(Part.Circle(Vector(-8.65, 4, 0), Vector(0, 0, 1), 4), math.radians(0), math.radians(180)),  # 2
    Part.LineSegment(Vector(-4.65, 4, 0), Vector(-4.65, 0, 0)),  # 3
    Part.Circle(Vector(-8.65, 4, 0), Vector(0, 0, 1), 0.8),  # 4
    Part.LineSegment(Vector(-12.65, -117.5, 0), Vector(-12.65, -113.5, 0)),  # 5
    Part.LineSegment(Vector(-12.65, -113.5, 0), Vector(-4.65, -113.5, 0)),  # 6
    Part.LineSegment(Vector(-4.65, -113.5, 0), Vector(-4.65, -117.5, 0)),  # 7
    Part.ArcOfCircle(Part.Circle(Vector(-8.65, -117.5, 0), Vector(0, 0, 1), 4), math.radians(180), math.radians(360)),  # 8
    Part.Circle(Vector(-8.65, -117.5, 0), Vector(0, 0, 1), 0.8),  # 9
], False)
sketch7.addConstraint([
    Sketcher.Constraint("Coincident", 0, 2, 1, 1),
    Sketcher.Constraint("Tangent", 1, 2, 2, 2),
    Sketcher.Constraint("Tangent", 2, 1, 3, 1),
    Sketcher.Constraint("Coincident", 3, 2, 0, 1),
    Sketcher.Constraint("Coincident", 5, 2, 6, 1),
    Sketcher.Constraint("Coincident", 6, 2, 7, 1),
    Sketcher.Constraint("Tangent", 7, 2, 8, 2),
    Sketcher.Constraint("Tangent", 8, 1, 5, 1),
    Sketcher.Constraint("Horizontal", 0),
    Sketcher.Constraint("Vertical", 1),
    Sketcher.Constraint("Vertical", 3),
    Sketcher.Constraint("Vertical", 5),
    Sketcher.Constraint("Horizontal", 6),
    Sketcher.Constraint("Vertical", 7),
    Sketcher.Constraint("Coincident", 4, 3, 2, 3),
    Sketcher.Constraint("Coincident", 9, 3, 8, 3),
    Sketcher.Constraint("Equal", 2, 8),
    Sketcher.Constraint("Equal", 4, 9),
    Sketcher.Constraint("PointOnObject", 0, 2, -1),
    Sketcher.Constraint("Vertical", 4, 3, 8, 3),
    Sketcher.Constraint("Equal", 3, 5),
    Sketcher.Constraint("Radius", 2, 4.0),
    Sketcher.Constraint("Diameter", 4, 1.6),
    Sketcher.Constraint("DistanceY", 1, 1, 1, 2, 4.0),
    Sketcher.Constraint("DistanceY", 8, 3, -1, 1, 117.5),
    Sketcher.Constraint("DistanceX", 2, 3, -1, 1, 8.65),
])
pad3 = body.newObject("PartDesign::Pad", "Pad002")
pad3.Profile = sketch7
pad3.Length = 5

# Sketch on YZ plane
sketch8 = body.newObject("Sketcher::SketchObject", "Sketch007")
sketch8.AttachmentSupport = (doc.getObject("YZ_Plane"), [""])
sketch8.MapMode = "FlatFace"
sketch8.AttachmentOffset = App.Placement(Vector(0, 0, -12.15), App.Rotation())
add_polygon(sketch8, [(-0.5, -101.35), (-0.5, -107.6361), (-1.5, -110.2084), (-1.5, -101.35)])  # lines 0-3
sketch8.addGeometry(Part.LineSegment(Vector(-0.5, -101.35, 0), Vector(-1.5, -101.35, 0)), True)  # axis
sketch8.addConstraint([
    Sketcher.Constraint("Vertical", 0),
    Sketcher.Constraint("Vertical", 2),
    Sketcher.Constraint("Horizontal", 3),
    Sketcher.Constraint("Horizontal", 4),
    Sketcher.Constraint("Coincident", 4, 1, 3, 2),
    Sketcher.Constraint("Vertical", 1, 2, 4, 2),
    Sketcher.Constraint("DistanceX", 3, 1, 3, 2, 1.0),
    Sketcher.Constraint("DistanceX", 0, 2, -1, 1, 0.5),
    Sketcher.Constraint("DistanceY", 0, 2, 0, 1, 6.286),
    Sketcher.Constraint("DistanceY", 2, 2, -1, 1, 101.35),
    Sketcher.Constraint("DistanceY", 2, 1, 2, 2, 8.8584),
])
groove = body.newObject("PartDesign::Groove", "Groove")
groove.Profile = sketch8
groove.ReferenceAxis = (sketch8, ["Axis0"])
groove.Angle = 360

# Sketch on YZ plane
sketch9 = body.newObject("Sketcher::SketchObject", "Sketch008")
sketch9.AttachmentSupport = (doc.getObject("YZ_Plane"), [""])
sketch9.MapMode = "FlatFace"
sketch9.AttachmentOffset = App.Placement(Vector(0, 0, -12.15), App.Rotation())
add_polygon(sketch9, [(-0.5, -85.3361), (-1.5, -87.9084), (-1.5, -79.05), (-0.5, -79.05)])  # lines 0-3
sketch9.addGeometry(Part.LineSegment(Vector(-0.5, -79.05, 0), Vector(-1.5, -79.05, 0)), True)  # axis
sketch9.addConstraint([
    Sketcher.Constraint("Vertical", 1),
    Sketcher.Constraint("Horizontal", 2),
    Sketcher.Constraint("Vertical", 3),
    Sketcher.Constraint("Horizontal", 4),
    Sketcher.Constraint("Coincident", 4, 1, 2, 2),
    Sketcher.Constraint("Vertical", 0, 2, 4, 2),
    Sketcher.Constraint("DistanceX", 2, 1, 2, 2, 1.0),
    Sketcher.Constraint("DistanceX", 0, 2, -1, 1, 1.5),
    Sketcher.Constraint("DistanceY", 3, 2, 3, 1, 6.286),
    Sketcher.Constraint("DistanceY", 1, 2, -1, 1, 79.05),
    Sketcher.Constraint("DistanceY", 1, 1, 1, 2, 8.8584),
])
groove2 = body.newObject("PartDesign::Groove", "Groove001")
groove2.Profile = sketch9
groove2.ReferenceAxis = (sketch9, ["Axis0"])
groove2.Angle = 360

# Sketch on YZ plane
sketch10 = body.newObject("Sketcher::SketchObject", "Sketch009")
sketch10.AttachmentSupport = (doc.getObject("YZ_Plane"), [""])
sketch10.MapMode = "FlatFace"
sketch10.AttachmentOffset = App.Placement(Vector(0, 0, -12.15), App.Rotation())
add_polygon(sketch10, [(-0.5, -63.0361), (-1.5, -65.6084), (-1.5, -56.75), (-0.5, -56.75)])  # lines 0-3
sketch10.addGeometry(Part.LineSegment(Vector(-0.5, -56.75, 0), Vector(-1.5, -56.75, 0)), True)  # axis
sketch10.addConstraint([
    Sketcher.Constraint("Vertical", 1),
    Sketcher.Constraint("Horizontal", 2),
    Sketcher.Constraint("Vertical", 3),
    Sketcher.Constraint("Horizontal", 4),
    Sketcher.Constraint("Coincident", 4, 1, 2, 2),
    Sketcher.Constraint("Vertical", 0, 2, 4, 2),
    Sketcher.Constraint("DistanceX", 2, 1, 2, 2, 1.0),
    Sketcher.Constraint("DistanceX", 0, 2, -1, 1, 1.5),
    Sketcher.Constraint("DistanceY", 3, 2, 3, 1, 6.286),
    Sketcher.Constraint("DistanceY", 1, 2, -1, 1, 56.75),
    Sketcher.Constraint("DistanceY", 1, 1, 1, 2, 8.8584),
])
groove3 = body.newObject("PartDesign::Groove", "Groove002")
groove3.Profile = sketch10
groove3.ReferenceAxis = (sketch10, ["Axis0"])
groove3.Angle = 360

# Sketch on YZ plane
sketch11 = body.newObject("Sketcher::SketchObject", "Sketch010")
sketch11.AttachmentSupport = (doc.getObject("YZ_Plane"), [""])
sketch11.MapMode = "FlatFace"
sketch11.AttachmentOffset = App.Placement(Vector(0, 0, -12.15), App.Rotation())
add_polygon(sketch11, [(-0.5, -12.15), (-0.5, -18.4361), (-1.5, -21.0084), (-1.5, -12.15)])  # lines 0-3
sketch11.addGeometry(Part.LineSegment(Vector(-0.5, -12.15, 0), Vector(-1.5, -12.15, 0)), True)  # axis
sketch11.addConstraint([
    Sketcher.Constraint("Vertical", 0),
    Sketcher.Constraint("Vertical", 2),
    Sketcher.Constraint("Horizontal", 3),
    Sketcher.Constraint("Horizontal", 4),
    Sketcher.Constraint("Coincident", 4, 1, 3, 2),
    Sketcher.Constraint("Vertical", 1, 2, 4, 2),
    Sketcher.Constraint("DistanceX", 3, 1, 3, 2, 1.0),
    Sketcher.Constraint("DistanceX", 0, 2, -1, 1, 0.5),
    Sketcher.Constraint("DistanceY", 0, 2, 0, 1, 6.286),
    Sketcher.Constraint("DistanceY", 2, 2, -1, 1, 12.15),
    Sketcher.Constraint("DistanceY", 2, 1, 2, 2, 8.8584),
])
groove4 = body.newObject("PartDesign::Groove", "Groove003")
groove4.Profile = sketch11
groove4.ReferenceAxis = (sketch11, ["Axis0"])
groove4.Angle = 360

# Sketch on YZ plane
sketch12 = body.newObject("Sketcher::SketchObject", "Sketch011")
sketch12.AttachmentSupport = (doc.getObject("YZ_Plane"), [""])
sketch12.MapMode = "FlatFace"
sketch12.AttachmentOffset = App.Placement(Vector(0, 0, -12.15), App.Rotation())
add_polygon(sketch12, [(-0.5, -34.45), (-0.5, -40.7361), (-1.5, -43.3084), (-1.5, -34.45)])  # lines 0-3
sketch12.addGeometry(Part.LineSegment(Vector(-0.5, -34.45, 0), Vector(-1.5, -34.45, 0)), True)  # axis
sketch12.addConstraint([
    Sketcher.Constraint("Vertical", 0),
    Sketcher.Constraint("Vertical", 2),
    Sketcher.Constraint("Horizontal", 3),
    Sketcher.Constraint("Horizontal", 4),
    Sketcher.Constraint("Coincident", 4, 1, 3, 2),
    Sketcher.Constraint("Vertical", 1, 2, 4, 2),
    Sketcher.Constraint("DistanceX", 3, 1, 3, 2, 1.0),
    Sketcher.Constraint("DistanceX", 0, 2, -1, 1, 0.5),
    Sketcher.Constraint("DistanceY", 0, 2, 0, 1, 6.286),
    Sketcher.Constraint("DistanceY", 2, 2, -1, 1, 34.45),
    Sketcher.Constraint("DistanceY", 2, 1, 2, 2, 8.8584),
])
groove5 = body.newObject("PartDesign::Groove", "Groove004")
groove5.Profile = sketch12
groove5.ReferenceAxis = (sketch12, ["Axis0"])
groove5.Angle = 360

doc.recompute()
